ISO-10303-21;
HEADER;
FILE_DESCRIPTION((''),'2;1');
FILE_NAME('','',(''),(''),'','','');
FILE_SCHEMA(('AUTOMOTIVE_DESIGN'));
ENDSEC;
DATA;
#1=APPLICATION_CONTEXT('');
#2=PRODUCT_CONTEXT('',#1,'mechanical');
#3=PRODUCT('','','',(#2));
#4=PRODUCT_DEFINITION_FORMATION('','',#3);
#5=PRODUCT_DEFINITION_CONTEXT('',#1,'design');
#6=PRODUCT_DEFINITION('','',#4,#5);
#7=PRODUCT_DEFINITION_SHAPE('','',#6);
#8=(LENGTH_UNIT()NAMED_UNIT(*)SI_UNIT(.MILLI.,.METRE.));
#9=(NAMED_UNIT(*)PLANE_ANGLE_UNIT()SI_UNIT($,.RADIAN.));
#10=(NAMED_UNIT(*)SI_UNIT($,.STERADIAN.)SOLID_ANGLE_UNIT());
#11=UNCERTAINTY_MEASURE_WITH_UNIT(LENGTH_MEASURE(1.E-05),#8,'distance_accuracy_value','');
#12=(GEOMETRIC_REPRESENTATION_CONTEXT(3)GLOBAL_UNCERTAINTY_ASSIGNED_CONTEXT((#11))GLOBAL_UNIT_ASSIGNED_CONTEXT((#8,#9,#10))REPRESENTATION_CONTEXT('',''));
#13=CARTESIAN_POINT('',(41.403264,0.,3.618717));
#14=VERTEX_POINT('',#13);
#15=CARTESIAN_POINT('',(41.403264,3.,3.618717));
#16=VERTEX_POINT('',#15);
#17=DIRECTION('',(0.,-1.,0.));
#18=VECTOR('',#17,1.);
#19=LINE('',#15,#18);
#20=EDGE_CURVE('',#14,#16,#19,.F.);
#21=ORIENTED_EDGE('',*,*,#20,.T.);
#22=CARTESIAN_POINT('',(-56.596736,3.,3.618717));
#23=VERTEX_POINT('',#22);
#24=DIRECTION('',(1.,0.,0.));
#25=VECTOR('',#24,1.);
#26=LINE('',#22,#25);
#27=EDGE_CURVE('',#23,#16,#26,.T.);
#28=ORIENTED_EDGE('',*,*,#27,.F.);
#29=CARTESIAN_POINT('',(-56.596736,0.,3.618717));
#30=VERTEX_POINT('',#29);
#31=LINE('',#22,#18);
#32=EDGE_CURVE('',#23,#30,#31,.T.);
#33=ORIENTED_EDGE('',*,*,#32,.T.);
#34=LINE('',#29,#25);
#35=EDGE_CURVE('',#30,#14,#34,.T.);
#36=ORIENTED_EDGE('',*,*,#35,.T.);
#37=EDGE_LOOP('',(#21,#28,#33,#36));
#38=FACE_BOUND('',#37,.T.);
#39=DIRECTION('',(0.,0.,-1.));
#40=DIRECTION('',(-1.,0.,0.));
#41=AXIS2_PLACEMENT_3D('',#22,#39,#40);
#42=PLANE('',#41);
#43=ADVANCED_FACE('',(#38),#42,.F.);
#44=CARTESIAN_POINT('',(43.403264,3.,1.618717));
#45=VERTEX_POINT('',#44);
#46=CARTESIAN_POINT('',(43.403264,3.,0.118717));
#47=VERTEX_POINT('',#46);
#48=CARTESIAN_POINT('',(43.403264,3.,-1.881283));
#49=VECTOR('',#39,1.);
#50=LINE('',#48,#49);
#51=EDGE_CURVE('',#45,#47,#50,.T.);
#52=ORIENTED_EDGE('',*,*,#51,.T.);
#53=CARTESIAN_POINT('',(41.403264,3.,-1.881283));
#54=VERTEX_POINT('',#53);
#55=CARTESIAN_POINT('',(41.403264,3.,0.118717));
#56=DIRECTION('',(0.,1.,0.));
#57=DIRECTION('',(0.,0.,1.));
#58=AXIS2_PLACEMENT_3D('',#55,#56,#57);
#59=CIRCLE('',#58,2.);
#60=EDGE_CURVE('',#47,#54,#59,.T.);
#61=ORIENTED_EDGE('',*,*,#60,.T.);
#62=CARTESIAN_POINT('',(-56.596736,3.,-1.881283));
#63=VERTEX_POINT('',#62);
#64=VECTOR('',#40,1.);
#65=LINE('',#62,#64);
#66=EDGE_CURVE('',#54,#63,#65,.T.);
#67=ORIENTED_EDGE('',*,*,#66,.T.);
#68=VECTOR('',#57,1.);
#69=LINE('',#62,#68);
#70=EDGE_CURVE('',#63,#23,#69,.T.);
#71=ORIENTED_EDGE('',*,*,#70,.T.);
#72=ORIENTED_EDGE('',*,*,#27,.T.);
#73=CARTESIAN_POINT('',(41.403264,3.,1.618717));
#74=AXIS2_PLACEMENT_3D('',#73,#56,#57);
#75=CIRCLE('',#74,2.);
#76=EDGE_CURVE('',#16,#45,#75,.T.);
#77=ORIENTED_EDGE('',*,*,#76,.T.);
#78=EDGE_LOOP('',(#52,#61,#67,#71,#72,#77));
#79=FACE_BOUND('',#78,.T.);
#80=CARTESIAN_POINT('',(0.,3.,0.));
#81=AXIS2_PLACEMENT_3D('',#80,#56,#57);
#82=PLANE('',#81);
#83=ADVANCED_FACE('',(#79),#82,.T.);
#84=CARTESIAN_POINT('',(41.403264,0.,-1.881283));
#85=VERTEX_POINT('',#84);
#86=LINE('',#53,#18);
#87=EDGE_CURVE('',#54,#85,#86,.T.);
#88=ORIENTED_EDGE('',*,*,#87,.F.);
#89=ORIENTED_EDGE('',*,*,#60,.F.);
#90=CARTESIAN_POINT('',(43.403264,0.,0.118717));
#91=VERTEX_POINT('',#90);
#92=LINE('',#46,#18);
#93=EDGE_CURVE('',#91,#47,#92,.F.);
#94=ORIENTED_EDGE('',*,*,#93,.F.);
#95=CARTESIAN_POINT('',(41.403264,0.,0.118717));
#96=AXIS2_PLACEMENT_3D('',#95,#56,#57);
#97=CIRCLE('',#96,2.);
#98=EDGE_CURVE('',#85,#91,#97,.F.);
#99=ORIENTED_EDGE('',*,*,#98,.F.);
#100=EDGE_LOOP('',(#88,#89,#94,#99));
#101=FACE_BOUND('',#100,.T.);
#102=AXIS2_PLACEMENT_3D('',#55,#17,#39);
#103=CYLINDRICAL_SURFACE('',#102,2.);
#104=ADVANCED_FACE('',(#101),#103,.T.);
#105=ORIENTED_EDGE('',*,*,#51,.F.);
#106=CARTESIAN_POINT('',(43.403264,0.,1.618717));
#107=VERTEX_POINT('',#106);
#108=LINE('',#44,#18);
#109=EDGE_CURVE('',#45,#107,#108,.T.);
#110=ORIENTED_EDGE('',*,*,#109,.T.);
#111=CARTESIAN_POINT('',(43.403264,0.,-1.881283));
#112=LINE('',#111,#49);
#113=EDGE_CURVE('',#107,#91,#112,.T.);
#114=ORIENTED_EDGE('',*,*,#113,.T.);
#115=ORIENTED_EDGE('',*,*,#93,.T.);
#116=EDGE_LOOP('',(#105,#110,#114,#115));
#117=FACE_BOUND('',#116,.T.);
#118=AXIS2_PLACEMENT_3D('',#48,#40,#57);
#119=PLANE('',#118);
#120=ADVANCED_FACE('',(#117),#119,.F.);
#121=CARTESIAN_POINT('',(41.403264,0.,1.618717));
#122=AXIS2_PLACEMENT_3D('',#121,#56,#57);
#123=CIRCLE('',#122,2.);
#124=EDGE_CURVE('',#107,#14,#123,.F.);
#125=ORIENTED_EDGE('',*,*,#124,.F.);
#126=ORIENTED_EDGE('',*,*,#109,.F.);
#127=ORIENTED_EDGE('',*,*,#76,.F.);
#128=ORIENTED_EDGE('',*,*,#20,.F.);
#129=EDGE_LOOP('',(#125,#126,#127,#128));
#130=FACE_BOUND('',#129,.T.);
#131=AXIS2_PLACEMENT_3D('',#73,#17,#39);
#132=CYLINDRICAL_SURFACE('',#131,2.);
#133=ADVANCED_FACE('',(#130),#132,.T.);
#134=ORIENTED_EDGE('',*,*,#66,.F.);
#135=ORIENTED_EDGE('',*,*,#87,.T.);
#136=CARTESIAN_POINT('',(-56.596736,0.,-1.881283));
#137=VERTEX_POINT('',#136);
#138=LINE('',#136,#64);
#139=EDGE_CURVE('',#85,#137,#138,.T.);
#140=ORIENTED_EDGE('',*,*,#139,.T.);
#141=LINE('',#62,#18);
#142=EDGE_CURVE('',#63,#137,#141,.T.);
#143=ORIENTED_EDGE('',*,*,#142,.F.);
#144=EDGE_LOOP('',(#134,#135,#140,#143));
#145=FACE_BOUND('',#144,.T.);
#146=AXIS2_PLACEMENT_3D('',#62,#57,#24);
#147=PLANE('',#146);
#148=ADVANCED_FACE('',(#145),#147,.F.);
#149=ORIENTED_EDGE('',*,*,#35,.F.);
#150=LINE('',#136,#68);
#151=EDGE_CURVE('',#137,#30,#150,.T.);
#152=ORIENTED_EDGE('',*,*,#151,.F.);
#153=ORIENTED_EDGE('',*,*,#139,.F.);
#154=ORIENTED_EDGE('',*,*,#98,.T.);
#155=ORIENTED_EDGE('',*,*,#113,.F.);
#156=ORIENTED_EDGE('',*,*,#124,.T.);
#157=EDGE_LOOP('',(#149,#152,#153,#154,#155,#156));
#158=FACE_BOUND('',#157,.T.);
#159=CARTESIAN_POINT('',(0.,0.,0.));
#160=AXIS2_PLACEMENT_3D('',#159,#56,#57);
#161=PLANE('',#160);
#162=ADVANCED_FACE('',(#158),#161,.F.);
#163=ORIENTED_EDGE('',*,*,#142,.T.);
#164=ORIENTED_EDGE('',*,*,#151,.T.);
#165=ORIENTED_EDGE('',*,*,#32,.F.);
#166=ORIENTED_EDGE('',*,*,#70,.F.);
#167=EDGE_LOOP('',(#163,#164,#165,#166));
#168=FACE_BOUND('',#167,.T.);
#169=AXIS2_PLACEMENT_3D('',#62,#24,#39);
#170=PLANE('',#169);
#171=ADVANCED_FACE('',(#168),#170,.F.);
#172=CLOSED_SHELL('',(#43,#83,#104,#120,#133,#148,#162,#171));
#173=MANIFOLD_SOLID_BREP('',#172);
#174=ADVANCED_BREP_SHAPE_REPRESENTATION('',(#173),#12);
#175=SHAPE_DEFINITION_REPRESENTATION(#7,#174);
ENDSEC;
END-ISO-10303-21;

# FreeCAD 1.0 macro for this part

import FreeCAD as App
import Part
import Sketcher

V = App.Vector


def edges_at(feature, points):
    """Names of the edges that pass closest to the given points."""
    edges = feature.Shape.Edges
    near = lambda p: min(range(len(edges)), key=lambda i: edges[i].distToShape(Part.Vertex(*p))[0])
    return sorted({f"Edge{near(p) + 1}" for p in points})


def add_polygon(sketch, points):
    """Adds a closed chain of lines whose ends are joined by coincident constraints."""
    first, n = sketch.GeometryCount, len(points)
    for a, b in zip(points, points[1:] + points[:1]):
        sketch.addGeometry(Part.LineSegment(App.Vector(*a, 0), App.Vector(*b, 0)), False)
    for i in range(n):
        sketch.addConstraint(Sketcher.Constraint("Coincident", first + i, 2, first + (i + 1) % n, 1))

doc = App.newDocument("Part")
body = doc.addObject("PartDesign::Body", "Body")

sketch1 = body.newObject("Sketcher::SketchObject", "Sketch")
sketch1.AttachmentSupport = (doc.getObject("XZ_Plane"), [""])
sketch1.MapMode = "FlatFace"
add_polygon(sketch1, [(-57, -2), (-57, 4), (43, 4), (43, -2)])
sketch1.addConstraint(Sketcher.Constraint("Vertical", 0))
sketch1.addConstraint(Sketcher.Constraint("Horizontal", 1))
sketch1.addConstraint(Sketcher.Constraint("Vertical", 2))
sketch1.addConstraint(Sketcher.Constraint("Horizontal", 3))
sketch1.addConstraint(Sketcher.Constraint("DistanceX", 1, 1, 1, 2, 100.0))
sketch1.addConstraint(Sketcher.Constraint("DistanceY", 0, 1, 0, 2, 5.5))
sketch1.addConstraint(Sketcher.Constraint("DistanceX", 0, 2, -1, 1, 56.596736))
sketch1.addConstraint(Sketcher.Constraint("DistanceY", -1, 1, 0, 2, 3.618717))
pad1 = body.newObject("PartDesign::Pad", "Pad")
pad1.Profile = sketch1
pad1.Length = 3
pad1.Reversed = True
doc.recompute()

fillet = body.newObject("PartDesign::Fillet", "Fillet")
fillet.Base = (pad1, edges_at(pad1, [(43.403, 1.5, -1.881), (43.403, 1.5, 3.619)]))
fillet.Radius = 2

doc.recompute()
